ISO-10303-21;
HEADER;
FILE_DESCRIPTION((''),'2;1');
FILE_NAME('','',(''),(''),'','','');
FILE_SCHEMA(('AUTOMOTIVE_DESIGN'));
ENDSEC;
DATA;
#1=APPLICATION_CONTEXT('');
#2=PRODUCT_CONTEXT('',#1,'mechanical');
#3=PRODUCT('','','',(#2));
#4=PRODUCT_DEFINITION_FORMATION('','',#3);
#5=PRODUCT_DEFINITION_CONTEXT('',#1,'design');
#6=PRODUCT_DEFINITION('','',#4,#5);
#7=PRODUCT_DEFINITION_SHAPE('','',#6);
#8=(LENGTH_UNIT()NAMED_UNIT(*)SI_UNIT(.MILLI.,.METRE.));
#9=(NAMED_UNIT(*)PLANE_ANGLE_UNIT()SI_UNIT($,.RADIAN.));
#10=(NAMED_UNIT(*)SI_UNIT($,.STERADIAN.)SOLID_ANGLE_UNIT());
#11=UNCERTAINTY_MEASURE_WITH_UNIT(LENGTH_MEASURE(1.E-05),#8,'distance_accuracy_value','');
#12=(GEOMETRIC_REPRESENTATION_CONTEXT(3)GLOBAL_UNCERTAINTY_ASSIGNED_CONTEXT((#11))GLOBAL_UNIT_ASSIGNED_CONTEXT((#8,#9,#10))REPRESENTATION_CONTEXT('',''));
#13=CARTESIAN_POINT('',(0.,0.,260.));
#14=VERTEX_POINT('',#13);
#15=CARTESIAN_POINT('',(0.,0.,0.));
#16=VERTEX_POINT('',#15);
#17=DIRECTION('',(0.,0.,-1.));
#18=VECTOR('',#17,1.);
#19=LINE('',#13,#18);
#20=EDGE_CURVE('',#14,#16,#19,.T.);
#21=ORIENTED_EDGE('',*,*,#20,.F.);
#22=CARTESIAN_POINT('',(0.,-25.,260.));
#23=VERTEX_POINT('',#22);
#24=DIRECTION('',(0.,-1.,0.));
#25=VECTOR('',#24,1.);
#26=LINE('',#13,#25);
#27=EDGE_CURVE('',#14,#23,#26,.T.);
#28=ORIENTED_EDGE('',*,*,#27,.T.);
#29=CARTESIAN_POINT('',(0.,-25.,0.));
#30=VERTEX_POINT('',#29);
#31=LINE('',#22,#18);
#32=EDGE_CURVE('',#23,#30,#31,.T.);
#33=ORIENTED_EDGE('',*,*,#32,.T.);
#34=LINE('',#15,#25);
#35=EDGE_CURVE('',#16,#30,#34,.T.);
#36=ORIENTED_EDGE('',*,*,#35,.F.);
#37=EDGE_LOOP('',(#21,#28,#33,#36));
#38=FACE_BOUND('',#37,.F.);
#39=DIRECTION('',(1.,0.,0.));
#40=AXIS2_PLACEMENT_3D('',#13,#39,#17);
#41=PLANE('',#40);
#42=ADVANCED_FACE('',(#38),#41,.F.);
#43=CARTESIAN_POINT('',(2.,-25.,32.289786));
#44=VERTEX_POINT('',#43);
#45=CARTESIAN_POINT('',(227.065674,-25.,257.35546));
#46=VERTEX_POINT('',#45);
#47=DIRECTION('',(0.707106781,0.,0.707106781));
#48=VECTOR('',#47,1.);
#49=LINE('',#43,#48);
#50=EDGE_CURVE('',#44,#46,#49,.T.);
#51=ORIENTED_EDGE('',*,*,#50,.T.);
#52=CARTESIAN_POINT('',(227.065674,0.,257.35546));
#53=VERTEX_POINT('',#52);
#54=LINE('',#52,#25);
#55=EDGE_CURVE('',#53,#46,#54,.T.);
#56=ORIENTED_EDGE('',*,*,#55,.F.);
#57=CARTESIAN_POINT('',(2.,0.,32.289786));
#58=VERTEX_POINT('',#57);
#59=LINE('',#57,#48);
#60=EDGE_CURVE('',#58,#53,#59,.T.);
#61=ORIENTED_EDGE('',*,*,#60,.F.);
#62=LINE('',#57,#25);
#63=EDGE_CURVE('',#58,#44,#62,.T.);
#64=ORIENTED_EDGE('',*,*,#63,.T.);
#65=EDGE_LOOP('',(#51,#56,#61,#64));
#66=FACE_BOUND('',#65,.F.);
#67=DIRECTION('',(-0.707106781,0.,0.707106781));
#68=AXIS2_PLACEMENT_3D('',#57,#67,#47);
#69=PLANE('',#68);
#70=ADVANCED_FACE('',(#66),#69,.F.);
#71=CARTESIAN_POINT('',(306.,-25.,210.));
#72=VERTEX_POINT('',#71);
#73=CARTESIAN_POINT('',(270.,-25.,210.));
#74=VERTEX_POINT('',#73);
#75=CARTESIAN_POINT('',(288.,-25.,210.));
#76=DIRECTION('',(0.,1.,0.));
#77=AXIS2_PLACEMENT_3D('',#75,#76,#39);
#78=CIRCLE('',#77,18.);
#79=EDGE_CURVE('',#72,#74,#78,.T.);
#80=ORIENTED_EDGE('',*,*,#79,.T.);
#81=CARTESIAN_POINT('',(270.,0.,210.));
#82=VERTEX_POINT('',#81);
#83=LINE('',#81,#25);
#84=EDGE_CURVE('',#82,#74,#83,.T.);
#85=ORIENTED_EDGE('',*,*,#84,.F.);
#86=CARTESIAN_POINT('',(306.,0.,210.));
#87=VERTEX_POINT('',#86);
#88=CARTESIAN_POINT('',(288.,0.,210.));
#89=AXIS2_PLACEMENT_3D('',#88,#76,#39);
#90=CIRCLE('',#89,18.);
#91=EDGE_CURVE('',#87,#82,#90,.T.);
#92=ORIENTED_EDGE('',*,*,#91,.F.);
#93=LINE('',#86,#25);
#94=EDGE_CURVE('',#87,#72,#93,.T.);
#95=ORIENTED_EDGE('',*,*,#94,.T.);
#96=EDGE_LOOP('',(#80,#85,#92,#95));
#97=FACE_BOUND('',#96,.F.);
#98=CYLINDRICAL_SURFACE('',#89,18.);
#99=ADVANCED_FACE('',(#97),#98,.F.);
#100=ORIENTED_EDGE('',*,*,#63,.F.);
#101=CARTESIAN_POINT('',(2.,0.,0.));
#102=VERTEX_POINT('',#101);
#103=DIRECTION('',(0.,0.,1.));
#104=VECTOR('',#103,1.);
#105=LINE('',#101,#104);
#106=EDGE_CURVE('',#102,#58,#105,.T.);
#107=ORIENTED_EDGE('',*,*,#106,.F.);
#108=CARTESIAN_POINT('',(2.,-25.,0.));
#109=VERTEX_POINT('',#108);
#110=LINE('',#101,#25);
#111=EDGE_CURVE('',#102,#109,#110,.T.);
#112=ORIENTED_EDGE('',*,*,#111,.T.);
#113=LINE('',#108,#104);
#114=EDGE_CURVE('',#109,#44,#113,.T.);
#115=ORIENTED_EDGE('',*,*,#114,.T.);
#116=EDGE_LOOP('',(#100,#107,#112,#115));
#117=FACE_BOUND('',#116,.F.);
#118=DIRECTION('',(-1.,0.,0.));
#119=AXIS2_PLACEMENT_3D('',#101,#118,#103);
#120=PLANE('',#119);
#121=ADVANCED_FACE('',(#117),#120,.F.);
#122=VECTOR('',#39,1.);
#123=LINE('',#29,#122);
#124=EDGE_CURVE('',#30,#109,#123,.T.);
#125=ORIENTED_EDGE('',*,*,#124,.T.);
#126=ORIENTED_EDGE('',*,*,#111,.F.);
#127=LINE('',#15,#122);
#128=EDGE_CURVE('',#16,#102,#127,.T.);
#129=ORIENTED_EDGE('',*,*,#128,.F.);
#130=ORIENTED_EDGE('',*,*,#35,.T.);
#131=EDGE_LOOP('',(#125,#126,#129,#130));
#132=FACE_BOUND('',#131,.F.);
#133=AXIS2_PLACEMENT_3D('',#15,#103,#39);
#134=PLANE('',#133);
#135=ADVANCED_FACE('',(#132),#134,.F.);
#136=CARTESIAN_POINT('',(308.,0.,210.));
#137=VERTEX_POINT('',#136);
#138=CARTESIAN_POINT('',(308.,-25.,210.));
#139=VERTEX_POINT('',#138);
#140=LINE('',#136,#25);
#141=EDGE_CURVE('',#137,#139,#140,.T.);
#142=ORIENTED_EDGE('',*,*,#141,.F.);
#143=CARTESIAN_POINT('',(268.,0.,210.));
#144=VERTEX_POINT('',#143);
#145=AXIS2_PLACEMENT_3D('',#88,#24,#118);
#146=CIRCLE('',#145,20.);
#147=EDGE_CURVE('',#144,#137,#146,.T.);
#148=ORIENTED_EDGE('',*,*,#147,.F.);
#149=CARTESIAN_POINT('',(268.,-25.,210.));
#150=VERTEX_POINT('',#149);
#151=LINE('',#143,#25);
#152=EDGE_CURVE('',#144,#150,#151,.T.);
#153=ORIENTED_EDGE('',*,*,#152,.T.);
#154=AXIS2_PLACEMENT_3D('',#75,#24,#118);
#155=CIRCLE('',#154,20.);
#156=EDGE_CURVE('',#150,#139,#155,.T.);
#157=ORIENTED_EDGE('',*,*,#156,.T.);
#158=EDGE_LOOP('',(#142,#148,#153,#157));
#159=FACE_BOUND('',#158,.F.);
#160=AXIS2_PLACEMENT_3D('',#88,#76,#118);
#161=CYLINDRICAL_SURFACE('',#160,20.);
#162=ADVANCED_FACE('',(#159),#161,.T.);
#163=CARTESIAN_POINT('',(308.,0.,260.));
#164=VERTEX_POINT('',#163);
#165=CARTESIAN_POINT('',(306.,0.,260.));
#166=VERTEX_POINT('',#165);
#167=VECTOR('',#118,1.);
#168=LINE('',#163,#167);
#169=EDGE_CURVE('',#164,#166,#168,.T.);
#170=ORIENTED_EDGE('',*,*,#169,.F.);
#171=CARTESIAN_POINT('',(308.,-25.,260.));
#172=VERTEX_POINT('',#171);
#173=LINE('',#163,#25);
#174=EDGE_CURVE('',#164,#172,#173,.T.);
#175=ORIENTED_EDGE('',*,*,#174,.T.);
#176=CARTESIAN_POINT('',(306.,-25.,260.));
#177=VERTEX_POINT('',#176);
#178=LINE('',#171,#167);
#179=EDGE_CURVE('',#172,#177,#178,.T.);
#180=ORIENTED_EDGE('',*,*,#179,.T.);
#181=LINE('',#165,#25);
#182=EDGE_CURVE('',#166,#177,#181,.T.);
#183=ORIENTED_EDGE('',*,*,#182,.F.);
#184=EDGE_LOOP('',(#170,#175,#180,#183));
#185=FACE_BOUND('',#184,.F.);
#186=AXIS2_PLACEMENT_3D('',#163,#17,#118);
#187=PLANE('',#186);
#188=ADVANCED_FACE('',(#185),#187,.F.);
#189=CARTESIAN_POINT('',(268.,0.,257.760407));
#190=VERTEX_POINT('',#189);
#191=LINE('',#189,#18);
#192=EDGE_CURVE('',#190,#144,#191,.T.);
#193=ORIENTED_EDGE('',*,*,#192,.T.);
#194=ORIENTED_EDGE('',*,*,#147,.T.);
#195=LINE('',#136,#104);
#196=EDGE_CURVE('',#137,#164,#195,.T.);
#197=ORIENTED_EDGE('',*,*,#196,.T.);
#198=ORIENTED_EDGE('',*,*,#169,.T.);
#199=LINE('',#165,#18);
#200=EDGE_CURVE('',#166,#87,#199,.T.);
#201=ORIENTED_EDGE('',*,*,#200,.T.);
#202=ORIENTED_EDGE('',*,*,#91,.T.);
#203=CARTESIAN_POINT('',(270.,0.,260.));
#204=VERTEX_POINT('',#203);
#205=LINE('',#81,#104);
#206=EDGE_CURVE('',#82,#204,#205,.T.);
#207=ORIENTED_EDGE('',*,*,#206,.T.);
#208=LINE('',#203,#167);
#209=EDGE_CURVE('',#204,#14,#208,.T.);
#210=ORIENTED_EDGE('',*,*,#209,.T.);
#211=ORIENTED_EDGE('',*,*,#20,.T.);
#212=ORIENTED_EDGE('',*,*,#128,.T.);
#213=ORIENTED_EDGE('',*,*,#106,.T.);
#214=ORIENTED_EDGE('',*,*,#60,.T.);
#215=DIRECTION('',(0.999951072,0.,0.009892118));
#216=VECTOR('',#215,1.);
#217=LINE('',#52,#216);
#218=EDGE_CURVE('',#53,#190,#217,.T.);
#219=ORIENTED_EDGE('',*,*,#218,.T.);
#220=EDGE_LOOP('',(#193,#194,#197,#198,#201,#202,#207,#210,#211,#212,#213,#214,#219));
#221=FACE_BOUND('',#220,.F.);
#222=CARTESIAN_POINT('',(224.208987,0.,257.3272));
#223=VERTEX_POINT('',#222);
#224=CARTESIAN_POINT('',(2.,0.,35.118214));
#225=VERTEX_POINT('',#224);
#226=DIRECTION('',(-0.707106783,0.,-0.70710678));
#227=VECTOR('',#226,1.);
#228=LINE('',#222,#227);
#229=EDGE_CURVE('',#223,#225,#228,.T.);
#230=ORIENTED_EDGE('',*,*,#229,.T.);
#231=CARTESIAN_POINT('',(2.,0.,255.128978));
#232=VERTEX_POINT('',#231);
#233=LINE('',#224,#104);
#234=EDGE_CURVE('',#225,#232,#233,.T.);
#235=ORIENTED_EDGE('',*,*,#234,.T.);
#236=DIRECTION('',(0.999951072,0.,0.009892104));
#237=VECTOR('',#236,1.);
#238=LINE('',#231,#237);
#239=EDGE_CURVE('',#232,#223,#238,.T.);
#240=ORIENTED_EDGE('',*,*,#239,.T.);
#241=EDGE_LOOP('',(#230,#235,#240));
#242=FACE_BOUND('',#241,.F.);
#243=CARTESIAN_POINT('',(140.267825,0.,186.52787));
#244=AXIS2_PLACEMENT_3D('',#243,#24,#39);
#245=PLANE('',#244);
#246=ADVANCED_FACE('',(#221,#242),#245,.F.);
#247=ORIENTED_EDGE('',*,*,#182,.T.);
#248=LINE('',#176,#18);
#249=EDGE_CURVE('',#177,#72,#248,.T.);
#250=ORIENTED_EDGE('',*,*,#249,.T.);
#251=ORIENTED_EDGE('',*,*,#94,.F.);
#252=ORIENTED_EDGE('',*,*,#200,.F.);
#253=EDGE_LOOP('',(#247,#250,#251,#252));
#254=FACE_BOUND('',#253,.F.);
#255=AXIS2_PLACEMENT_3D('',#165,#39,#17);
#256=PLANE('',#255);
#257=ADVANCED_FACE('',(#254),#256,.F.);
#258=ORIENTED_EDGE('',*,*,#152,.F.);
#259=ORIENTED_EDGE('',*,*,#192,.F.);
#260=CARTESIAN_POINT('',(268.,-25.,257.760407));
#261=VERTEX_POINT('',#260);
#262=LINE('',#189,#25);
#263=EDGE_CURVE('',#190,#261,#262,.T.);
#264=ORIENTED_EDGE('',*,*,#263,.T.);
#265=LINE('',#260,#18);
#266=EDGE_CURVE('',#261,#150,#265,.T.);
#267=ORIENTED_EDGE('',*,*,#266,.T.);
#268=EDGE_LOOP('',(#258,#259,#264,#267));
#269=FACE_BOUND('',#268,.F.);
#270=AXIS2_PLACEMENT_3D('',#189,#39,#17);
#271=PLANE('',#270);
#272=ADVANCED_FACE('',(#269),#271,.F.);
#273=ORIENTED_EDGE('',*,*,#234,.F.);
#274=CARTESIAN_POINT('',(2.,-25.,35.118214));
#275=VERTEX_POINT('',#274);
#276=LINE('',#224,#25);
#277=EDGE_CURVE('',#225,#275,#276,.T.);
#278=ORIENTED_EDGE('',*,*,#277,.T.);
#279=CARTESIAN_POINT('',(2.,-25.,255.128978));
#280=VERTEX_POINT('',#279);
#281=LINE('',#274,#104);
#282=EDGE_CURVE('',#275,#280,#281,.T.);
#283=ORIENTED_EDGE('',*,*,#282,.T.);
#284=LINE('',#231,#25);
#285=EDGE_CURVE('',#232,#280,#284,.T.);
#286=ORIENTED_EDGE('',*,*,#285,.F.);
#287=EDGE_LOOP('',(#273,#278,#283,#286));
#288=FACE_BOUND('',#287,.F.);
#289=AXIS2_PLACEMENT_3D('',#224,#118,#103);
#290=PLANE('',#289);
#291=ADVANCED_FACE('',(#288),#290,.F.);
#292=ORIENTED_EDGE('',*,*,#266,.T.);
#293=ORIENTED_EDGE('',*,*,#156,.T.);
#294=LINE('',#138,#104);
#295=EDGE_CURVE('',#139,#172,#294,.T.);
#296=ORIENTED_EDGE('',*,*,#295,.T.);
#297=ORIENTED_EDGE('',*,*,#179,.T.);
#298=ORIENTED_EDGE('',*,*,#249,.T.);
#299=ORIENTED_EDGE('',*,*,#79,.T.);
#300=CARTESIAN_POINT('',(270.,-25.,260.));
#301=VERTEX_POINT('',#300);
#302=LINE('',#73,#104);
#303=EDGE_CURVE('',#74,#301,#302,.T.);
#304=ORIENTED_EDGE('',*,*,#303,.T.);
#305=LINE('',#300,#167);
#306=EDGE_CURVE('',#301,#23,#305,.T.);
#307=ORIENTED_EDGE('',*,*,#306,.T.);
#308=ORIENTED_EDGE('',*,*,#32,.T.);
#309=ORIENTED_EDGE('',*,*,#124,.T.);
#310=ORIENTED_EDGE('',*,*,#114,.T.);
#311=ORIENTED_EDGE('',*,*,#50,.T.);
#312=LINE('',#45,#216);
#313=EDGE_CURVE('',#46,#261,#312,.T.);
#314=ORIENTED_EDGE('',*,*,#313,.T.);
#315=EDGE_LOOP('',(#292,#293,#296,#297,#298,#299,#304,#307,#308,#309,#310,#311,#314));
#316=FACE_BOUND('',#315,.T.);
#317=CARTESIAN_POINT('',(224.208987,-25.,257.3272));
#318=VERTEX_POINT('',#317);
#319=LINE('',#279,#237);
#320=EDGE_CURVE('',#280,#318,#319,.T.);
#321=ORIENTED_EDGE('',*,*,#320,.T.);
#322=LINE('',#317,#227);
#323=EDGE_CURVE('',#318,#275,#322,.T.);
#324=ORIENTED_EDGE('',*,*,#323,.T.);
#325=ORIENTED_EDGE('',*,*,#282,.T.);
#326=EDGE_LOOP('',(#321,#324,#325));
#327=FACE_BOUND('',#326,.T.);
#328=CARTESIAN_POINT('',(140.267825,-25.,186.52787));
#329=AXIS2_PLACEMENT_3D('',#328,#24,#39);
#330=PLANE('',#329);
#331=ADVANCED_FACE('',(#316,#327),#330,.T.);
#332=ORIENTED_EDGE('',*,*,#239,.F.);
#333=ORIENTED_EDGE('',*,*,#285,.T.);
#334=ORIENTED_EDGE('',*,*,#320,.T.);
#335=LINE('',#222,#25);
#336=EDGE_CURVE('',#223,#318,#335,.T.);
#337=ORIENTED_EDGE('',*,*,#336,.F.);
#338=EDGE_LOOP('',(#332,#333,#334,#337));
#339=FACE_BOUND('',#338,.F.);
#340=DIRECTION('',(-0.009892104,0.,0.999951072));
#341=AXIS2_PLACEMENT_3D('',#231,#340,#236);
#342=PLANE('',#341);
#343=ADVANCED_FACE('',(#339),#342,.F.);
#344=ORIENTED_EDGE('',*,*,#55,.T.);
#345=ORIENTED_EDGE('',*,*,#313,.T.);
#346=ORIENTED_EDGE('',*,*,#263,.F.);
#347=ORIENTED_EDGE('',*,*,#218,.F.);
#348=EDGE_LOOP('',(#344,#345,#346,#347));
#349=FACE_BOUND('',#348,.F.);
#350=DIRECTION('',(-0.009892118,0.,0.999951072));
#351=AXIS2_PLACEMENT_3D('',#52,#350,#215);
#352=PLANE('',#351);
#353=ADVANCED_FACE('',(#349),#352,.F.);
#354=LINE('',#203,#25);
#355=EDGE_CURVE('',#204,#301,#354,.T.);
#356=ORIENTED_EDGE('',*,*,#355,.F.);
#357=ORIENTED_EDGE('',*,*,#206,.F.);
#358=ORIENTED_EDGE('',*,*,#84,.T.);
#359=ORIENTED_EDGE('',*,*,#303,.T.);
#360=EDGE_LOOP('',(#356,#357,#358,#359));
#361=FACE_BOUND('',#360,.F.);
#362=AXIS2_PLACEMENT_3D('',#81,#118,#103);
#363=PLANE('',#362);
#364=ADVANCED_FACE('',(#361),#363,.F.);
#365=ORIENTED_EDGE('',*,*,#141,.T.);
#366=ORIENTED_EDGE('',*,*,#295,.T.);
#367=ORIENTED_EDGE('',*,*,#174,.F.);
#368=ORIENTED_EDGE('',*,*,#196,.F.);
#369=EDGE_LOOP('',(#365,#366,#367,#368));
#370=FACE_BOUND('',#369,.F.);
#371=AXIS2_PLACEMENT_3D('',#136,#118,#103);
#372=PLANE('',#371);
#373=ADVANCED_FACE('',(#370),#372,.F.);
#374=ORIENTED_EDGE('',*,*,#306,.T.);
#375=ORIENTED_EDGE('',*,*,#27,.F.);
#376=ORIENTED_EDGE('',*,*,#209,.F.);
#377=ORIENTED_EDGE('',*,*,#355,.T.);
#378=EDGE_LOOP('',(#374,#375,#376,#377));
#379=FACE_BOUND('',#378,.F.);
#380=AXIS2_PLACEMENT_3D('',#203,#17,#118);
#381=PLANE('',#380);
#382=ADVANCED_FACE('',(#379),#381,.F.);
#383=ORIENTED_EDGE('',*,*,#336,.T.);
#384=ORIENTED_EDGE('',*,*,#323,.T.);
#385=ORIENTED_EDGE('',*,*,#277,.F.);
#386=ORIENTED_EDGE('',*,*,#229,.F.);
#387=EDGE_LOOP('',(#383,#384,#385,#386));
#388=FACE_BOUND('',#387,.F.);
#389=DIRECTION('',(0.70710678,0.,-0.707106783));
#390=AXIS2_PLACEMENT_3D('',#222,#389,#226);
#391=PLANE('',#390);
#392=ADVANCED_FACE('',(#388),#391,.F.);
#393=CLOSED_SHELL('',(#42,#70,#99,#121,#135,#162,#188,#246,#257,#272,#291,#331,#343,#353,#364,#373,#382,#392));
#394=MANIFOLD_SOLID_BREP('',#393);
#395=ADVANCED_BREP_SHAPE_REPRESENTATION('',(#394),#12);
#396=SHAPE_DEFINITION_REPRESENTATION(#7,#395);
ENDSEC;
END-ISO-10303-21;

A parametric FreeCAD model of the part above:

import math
import FreeCAD as App
import Part
import Sketcher
Q = App.Units.Quantity


def add_polygon(sketch, points):
    """Adds a closed chain of lines whose ends are joined by coincident constraints."""
    first, n = sketch.GeometryCount, len(points)
    for a, b in zip(points, points[1:] + points[:1]):
        sketch.addGeometry(Part.LineSegment(App.Vector(*a, 0), App.Vector(*b, 0)), False)
    for i in range(n):
        sketch.addConstraint(Sketcher.Constraint("Coincident", first + i, 2, first + (i + 1) % n, 1))

doc = App.newDocument("Part")
body = doc.addObject("PartDesign::Body", "Body")

# Sketch on XZ plane
sketch1 = body.newObject("Sketcher::SketchObject", "Sketch")
sketch1.AttachmentSupport = (doc.getObject("XZ_Plane"), [""])
sketch1.MapMode = "FlatFace"
sketch1.addGeometry(Part.LineSegment(App.Vector(0, 260, 0), App.Vector(0, 0, 0)), False)  # 0
sketch1.addGeometry(Part.LineSegment(App.Vector(0, 0, 0), App.Vector(2, 0, 0)), False)  # 1
sketch1.addGeometry(Part.LineSegment(App.Vector(2, 0, 0), App.Vector(2, 32.3, 0)), False)  # 2
sketch1.addGeometry(Part.LineSegment(App.Vector(2, 32.3, 0), App.Vector(227.1, 257.4, 0)), False)  # 3
sketch1.addGeometry(Part.LineSegment(App.Vector(227.1, 257.4, 0), App.Vector(268, 257.8, 0)), False)  # 4
sketch1.addGeometry(Part.LineSegment(App.Vector(268, 257.8, 0), App.Vector(268, 210, 0)), False)  # 5
sketch1.addGeometry(Part.ArcOfCircle(Part.Circle(App.Vector(288, 210, 0), App.Vector(0, 0, 1), 20), math.radians(180), math.radians(360)), False)  # 6
sketch1.addGeometry(Part.LineSegment(App.Vector(308, 210, 0), App.Vector(308, 260, 0)), False)  # 7
sketch1.addGeometry(Part.LineSegment(App.Vector(308, 260, 0), App.Vector(306, 260, 0)), False)  # 8
sketch1.addGeometry(Part.LineSegment(App.Vector(306, 260, 0), App.Vector(306, 210, 0)), False)  # 9
sketch1.addGeometry(Part.ArcOfCircle(Part.Circle(App.Vector(288, 210, 0), App.Vector(0, 0, 1), 18), math.radians(180), math.radians(360)), False)  # 10
sketch1.addGeometry(Part.LineSegment(App.Vector(270, 210, 0), App.Vector(270, 260, 0)), False)  # 11
sketch1.addGeometry(Part.LineSegment(App.Vector(270, 260, 0), App.Vector(0, 260, 0)), False)  # 12
add_polygon(sketch1, [(224.2, 257.3), (2, 35.1), (2, 255.1)])  # lines 13-15
sketch1.addConstraint(Sketcher.Constraint("Coincident", 0, 2, 1, 1))
sketch1.addConstraint(Sketcher.Constraint("Coincident", 1, 2, 2, 1))
sketch1.addConstraint(Sketcher.Constraint("Coincident", 2, 2, 3, 1))
sketch1.addConstraint(Sketcher.Constraint("Coincident", 3, 2, 4, 1))
sketch1.addConstraint(Sketcher.Constraint("Coincident", 4, 2, 5, 1))
sketch1.addConstraint(Sketcher.Constraint("Tangent", 5, 2, 6, 1))
sketch1.addConstraint(Sketcher.Constraint("Tangent", 6, 2, 7, 1))
sketch1.addConstraint(Sketcher.Constraint("Coincident", 7, 2, 8, 1))
sketch1.addConstraint(Sketcher.Constraint("Coincident", 8, 2, 9, 1))
sketch1.addConstraint(Sketcher.Constraint("Tangent", 9, 2, 10, 2))
sketch1.addConstraint(Sketcher.Constraint("Tangent", 10, 1, 11, 1))
sketch1.addConstraint(Sketcher.Constraint("Coincident", 11, 2, 12, 1))
sketch1.addConstraint(Sketcher.Constraint("Coincident", 12, 2, 0, 1))
sketch1.addConstraint(Sketcher.Constraint("Vertical", 0))
sketch1.addConstraint(Sketcher.Constraint("Horizontal", 1))
sketch1.addConstraint(Sketcher.Constraint("Vertical", 2))
sketch1.addConstraint(Sketcher.Constraint("Vertical", 5))
sketch1.addConstraint(Sketcher.Constraint("Vertical", 7))
sketch1.addConstraint(Sketcher.Constraint("Horizontal", 8))
sketch1.addConstraint(Sketcher.Constraint("Vertical", 9))
sketch1.addConstraint(Sketcher.Constraint("Vertical", 11))
sketch1.addConstraint(Sketcher.Constraint("Horizontal", 12))
sketch1.addConstraint(Sketcher.Constraint("Vertical", 14))
sketch1.addConstraint(Sketcher.Constraint("Coincident", 0, 2, -1, 1))
sketch1.addConstraint(Sketcher.Constraint("Coincident", 10, 3, 6, 3))
sketch1.addConstraint(Sketcher.Constraint("Parallel", 3, 13))
sketch1.addConstraint(Sketcher.Constraint("Parallel", 4, 15))
sketch1.addConstraint(Sketcher.Constraint("Horizontal", 8, 2, 11, 2))
sketch1.addConstraint(Sketcher.Constraint("Vertical", 2, 2, 13, 2))
sketch1.addConstraint(Sketcher.Constraint("Equal", 1, 8))
sketch1.addConstraint(Sketcher.Constraint("Radius", 6, 20.0))
sketch1.addConstraint(Sketcher.Constraint("Radius", 10, 18.0))
sketch1.addConstraint(Sketcher.Constraint("DistanceX", 12, 2, 12, 1, 270.0))
sketch1.addConstraint(Sketcher.Constraint("DistanceY", 0, 2, 0, 1, 260.0))
sketch1.addConstraint(Sketcher.Constraint("DistanceY", 7, 1, 7, 2, 50.0))
sketch1.addConstraint(Sketcher.Constraint("Angle", 3, Q("45 deg")))
sketch1.addConstraint(Sketcher.Constraint("DistanceY", -1, 1, 15, 2, 257.3272))
sketch1.addConstraint(Sketcher.Constraint("Distance", 3, 318.290929))
sketch1.addConstraint(Sketcher.Constraint("Distance", 15, 222.21986))
sketch1.addConstraint(Sketcher.Constraint("DistanceY", 2, 1, 2, 2, 32.289786))
sketch1.addConstraint(Sketcher.Constraint("DistanceY", 5, 2, 5, 1, 47.760407))
pad1 = body.newObject("PartDesign::Pad", "Pad")
pad1.Profile = sketch1
pad1.Length = 25

doc.recompute()
